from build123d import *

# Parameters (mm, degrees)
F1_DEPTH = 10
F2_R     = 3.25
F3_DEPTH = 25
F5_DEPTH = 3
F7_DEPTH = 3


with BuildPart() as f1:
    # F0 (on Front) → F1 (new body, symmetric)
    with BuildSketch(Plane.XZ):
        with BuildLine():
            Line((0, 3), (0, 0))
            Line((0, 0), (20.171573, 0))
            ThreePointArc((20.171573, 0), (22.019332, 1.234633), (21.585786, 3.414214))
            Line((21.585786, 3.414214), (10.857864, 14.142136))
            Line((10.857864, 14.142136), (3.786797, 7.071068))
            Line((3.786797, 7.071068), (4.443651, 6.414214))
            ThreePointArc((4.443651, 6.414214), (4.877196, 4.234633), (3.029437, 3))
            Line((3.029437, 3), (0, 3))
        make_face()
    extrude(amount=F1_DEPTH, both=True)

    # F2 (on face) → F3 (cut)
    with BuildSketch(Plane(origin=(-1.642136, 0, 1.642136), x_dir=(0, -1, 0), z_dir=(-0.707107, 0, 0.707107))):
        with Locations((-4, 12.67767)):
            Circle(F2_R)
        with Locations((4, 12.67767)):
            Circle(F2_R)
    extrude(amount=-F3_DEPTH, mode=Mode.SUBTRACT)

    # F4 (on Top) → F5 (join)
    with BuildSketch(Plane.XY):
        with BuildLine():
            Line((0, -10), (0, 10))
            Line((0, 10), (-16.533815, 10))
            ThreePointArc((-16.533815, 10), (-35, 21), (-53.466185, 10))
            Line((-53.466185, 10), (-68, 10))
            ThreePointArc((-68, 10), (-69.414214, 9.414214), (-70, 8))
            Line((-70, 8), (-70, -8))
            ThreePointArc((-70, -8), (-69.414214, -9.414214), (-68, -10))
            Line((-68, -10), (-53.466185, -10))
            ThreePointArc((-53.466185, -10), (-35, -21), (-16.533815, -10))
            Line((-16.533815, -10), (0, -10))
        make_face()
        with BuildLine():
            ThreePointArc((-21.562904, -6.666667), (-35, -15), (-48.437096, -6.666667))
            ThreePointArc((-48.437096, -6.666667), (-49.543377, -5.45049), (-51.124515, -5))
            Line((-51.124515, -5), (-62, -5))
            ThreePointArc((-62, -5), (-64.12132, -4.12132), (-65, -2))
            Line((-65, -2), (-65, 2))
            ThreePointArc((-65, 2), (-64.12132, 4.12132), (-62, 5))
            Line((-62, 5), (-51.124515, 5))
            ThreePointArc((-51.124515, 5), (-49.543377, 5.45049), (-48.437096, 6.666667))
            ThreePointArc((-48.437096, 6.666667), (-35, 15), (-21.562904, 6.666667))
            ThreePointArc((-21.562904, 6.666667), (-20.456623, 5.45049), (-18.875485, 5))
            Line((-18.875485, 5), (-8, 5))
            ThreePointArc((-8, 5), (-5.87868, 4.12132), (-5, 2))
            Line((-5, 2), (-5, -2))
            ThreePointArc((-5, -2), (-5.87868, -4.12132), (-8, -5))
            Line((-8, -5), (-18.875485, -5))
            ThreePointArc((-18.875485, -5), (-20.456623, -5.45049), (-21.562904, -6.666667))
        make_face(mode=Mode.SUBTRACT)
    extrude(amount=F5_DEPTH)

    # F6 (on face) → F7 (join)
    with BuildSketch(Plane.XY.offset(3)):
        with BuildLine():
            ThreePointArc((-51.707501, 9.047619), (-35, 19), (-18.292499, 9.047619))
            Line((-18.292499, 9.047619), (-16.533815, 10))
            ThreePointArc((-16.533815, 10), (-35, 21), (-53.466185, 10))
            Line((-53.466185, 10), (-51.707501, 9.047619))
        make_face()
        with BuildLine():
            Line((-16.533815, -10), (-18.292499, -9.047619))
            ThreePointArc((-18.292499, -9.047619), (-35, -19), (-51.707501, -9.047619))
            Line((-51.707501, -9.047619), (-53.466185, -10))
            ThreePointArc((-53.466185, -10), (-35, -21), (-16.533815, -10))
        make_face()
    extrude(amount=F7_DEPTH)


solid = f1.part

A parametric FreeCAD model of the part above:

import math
import FreeCAD as App
import Part
import Sketcher
Q = App.Units.Quantity

doc = App.newDocument("Part")
body = doc.addObject("PartDesign::Body", "Body")

# Sketch on XZ plane
sketch1 = doc.addObject("Sketcher::SketchObject", "Sketch")
body.addObject(sketch1)
sketch1.AttachmentSupport = (doc.XZ_Plane, [""])
sketch1.MapMode = "FlatFace"
sketch1.addGeometry([
    Part.LineSegment(App.Vector(0, 3, 0), App.Vector(0, 0, 0)),  # 0
    Part.LineSegment(App.Vector(0, 0, 0), App.Vector(20.171573, 0, 0)),  # 1
    Part.ArcOfCircle(Part.Circle(App.Vector(20.171573, 2, 0), App.Vector(0, 0, 1), 2), math.radians(-90.000001), math.radians(45.000022)),  # 2
    Part.LineSegment(App.Vector(21.585786, 3.414214, 0), App.Vector(10.857864, 14.142136, 0)),  # 3
    Part.LineSegment(App.Vector(10.857864, 14.142136, 0), App.Vector(3.786797, 7.071068, 0)),  # 4
    Part.LineSegment(App.Vector(3.786797, 7.071068, 0), App.Vector(4.443651, 6.414214, 0)),  # 5
    Part.ArcOfCircle(Part.Circle(App.Vector(3.029437, 5.000001, 0), App.Vector(0, 0, 1), 2.000001), math.radians(-89.99999), math.radians(44.999983)),  # 6
    Part.LineSegment(App.Vector(3.029437, 3, 0), App.Vector(0, 3, 0)),  # 7
], False)
sketch1.addConstraint([
    Sketcher.Constraint("Coincident", 0, 2, 1, 1),
    Sketcher.Constraint("Tangent", 1, 2, 2, 1),
    Sketcher.Constraint("Tangent", 2, 2, 3, 1),
    Sketcher.Constraint("Coincident", 3, 2, 4, 1),
    Sketcher.Constraint("Coincident", 4, 2, 5, 1),
    Sketcher.Constraint("Tangent", 5, 2, 6, 2),
    Sketcher.Constraint("Tangent", 6, 1, 7, 1),
    Sketcher.Constraint("Coincident", 7, 2, 0, 1),
    Sketcher.Constraint("Vertical", 0),
    Sketcher.Constraint("Horizontal", 1),
    Sketcher.Constraint("Horizontal", 7),
    Sketcher.Constraint("Coincident", 0, 2, -1, 1),
    Sketcher.Constraint("Equal", 2, 6),
    Sketcher.Constraint("Perpendicular", 3, 4),
    Sketcher.Constraint("Perpendicular", 4, 5),
    Sketcher.Constraint("Radius", 2, 2.0),
    Sketcher.Constraint("DistanceY", 0, 2, 0, 1, 3.0),
    Sketcher.Constraint("Angle", 3, Q("135 deg")),
    Sketcher.Constraint("Distance", 4, 10.0),
    Sketcher.Constraint("Distance", 5, 0.928932),
    Sketcher.Constraint("DistanceX", 1, 1, 1, 2, 20.171573),
])
pad1 = doc.addObject("PartDesign::Pad", "Pad")
body.addObject(pad1)
pad1.Profile = sketch1
pad1.Length = 20
pad1.Midplane = True

# Sketch on an angled plane
sketch2 = doc.addObject("Sketcher::SketchObject", "Sketch001")
body.addObject(sketch2)
sketch2.Placement = App.Placement(App.Vector(-1.642136, 0, 1.642136), App.Rotation(App.Vector(0, -1, 0), App.Vector(0.707106781, 0, 0.707106781), App.Vector(-0.707106781, 0, 0.707106781), "ZXY"))
sketch2.addGeometry([
    Part.Circle(App.Vector(-4, 12.67767, 0), App.Vector(0, 0, 1), 3.25),
    Part.Circle(App.Vector(4, 12.67767, 0), App.Vector(0, 0, 1), 3.25),
], False)
sketch2.addConstraint([
    Sketcher.Constraint("Equal", 0, 1),
    Sketcher.Constraint("Symmetric", 0, 3, 1, 3, -2),
    Sketcher.Constraint("Diameter", 0, 6.5),
    Sketcher.Constraint("DistanceX", 0, 3, -1, 1, 4.0),
    Sketcher.Constraint("DistanceY", -1, 1, 0, 3, 12.67767),
])
pocket1 = doc.addObject("PartDesign::Pocket", "Pocket")
body.addObject(pocket1)
pocket1.Profile = sketch2
pocket1.Length = 25

# Sketch on XY plane
sketch3 = doc.addObject("Sketcher::SketchObject", "Sketch002")
body.addObject(sketch3)
sketch3.AttachmentSupport = (doc.XY_Plane, [""])
sketch3.MapMode = "FlatFace"
sketch3.addGeometry([
    Part.LineSegment(App.Vector(0, -10, 0), App.Vector(0, 10, 0)),  # 0
    Part.LineSegment(App.Vector(0, 10, 0), App.Vector(-16.533815, 10, 0)),  # 1
    Part.ArcOfCircle(Part.Circle(App.Vector(-35, 0.000001, 0), App.Vector(0, 0, 1), 20.999999), math.radians(28.436889), math.radians(151.563111)),  # 2
    Part.LineSegment(App.Vector(-53.466185, 10, 0), App.Vector(-68, 10, 0)),  # 3
    Part.ArcOfCircle(Part.Circle(App.Vector(-68.000001, 8.000001, 0), App.Vector(0, 0, 1), 1.999999), math.radians(89.999957), math.radians(180.000043)),  # 4
    Part.LineSegment(App.Vector(-70, 8, 0), App.Vector(-70, -8, 0)),  # 5
    Part.ArcOfCircle(Part.Circle(App.Vector(-68.000001, -8.000001, 0), App.Vector(0, 0, 1), 1.999999), math.radians(179.999957), math.radians(270.000043)),  # 6
    Part.LineSegment(App.Vector(-68, -10, 0), App.Vector(-53.466185, -10, 0)),  # 7
    Part.ArcOfCircle(Part.Circle(App.Vector(-35, -0.000001, 0), App.Vector(0, 0, 1), 20.999999), math.radians(-151.563111), math.radians(-28.436889)),  # 8
    Part.LineSegment(App.Vector(-16.533815, -10, 0), App.Vector(0, -10, 0)),  # 9
    Part.ArcOfCircle(Part.Circle(App.Vector(-18.875485, -8, 0), App.Vector(0, 0, 1), 3), math.radians(90.000009), math.radians(153.612206)),  # 10
    Part.ArcOfCircle(Part.Circle(App.Vector(-35, 0, 0), App.Vector(0, 0, 1), 15), math.radians(-153.612199), math.radians(-26.387801)),  # 11
    Part.ArcOfCircle(Part.Circle(App.Vector(-51.124515, -8, 0), App.Vector(0, 0, 1), 3), math.radians(26.387794), math.radians(89.999991)),  # 12
    Part.LineSegment(App.Vector(-51.124515, -5, 0), App.Vector(-62, -5, 0)),  # 13
    Part.ArcOfCircle(Part.Circle(App.Vector(-61.999999, -1.999999, 0), App.Vector(0, 0, 1), 3.000001), math.radians(-179.999978), math.radians(-90.000022)),  # 14
    Part.LineSegment(App.Vector(-65, -2, 0), App.Vector(-65, 2, 0)),  # 15
    Part.ArcOfCircle(Part.Circle(App.Vector(-61.999999, 1.999999, 0), App.Vector(0, 0, 1), 3.000001), math.radians(90.000022), math.radians(179.999978)),  # 16
    Part.LineSegment(App.Vector(-62, 5, 0), App.Vector(-51.124515, 5, 0)),  # 17
    Part.ArcOfCircle(Part.Circle(App.Vector(-51.124515, 8, 0), App.Vector(0, 0, 1), 3), math.radians(-89.999991), math.radians(-26.387794)),  # 18
    Part.ArcOfCircle(Part.Circle(App.Vector(-35, 0, 0), App.Vector(0, 0, 1), 15), math.radians(26.387801), math.radians(153.612199)),  # 19
    Part.ArcOfCircle(Part.Circle(App.Vector(-18.875485, 8, 0), App.Vector(0, 0, 1), 3), math.radians(-153.612206), math.radians(-90.000009)),  # 20
    Part.LineSegment(App.Vector(-18.875485, 5, 0), App.Vector(-8, 5, 0)),  # 21
    Part.ArcOfCircle(Part.Circle(App.Vector(-8.000001, 1.999999, 0), App.Vector(0, 0, 1), 3.000001), math.radians(0.000022), math.radians(89.999978)),  # 22
    Part.LineSegment(App.Vector(-5, 2, 0), App.Vector(-5, -2, 0)),  # 23
    Part.ArcOfCircle(Part.Circle(App.Vector(-8.000001, -1.999999, 0), App.Vector(0, 0, 1), 3.000001), math.radians(-89.999978), math.radians(-0.000022)),  # 24
    Part.LineSegment(App.Vector(-8, -5, 0), App.Vector(-18.875485, -5, 0)),  # 25
], False)
sketch3.addConstraint([
    Sketcher.Constraint("Coincident", 0, 2, 1, 1),
    Sketcher.Constraint("Coincident", 1, 2, 2, 1),
    Sketcher.Constraint("Coincident", 2, 2, 3, 1),
    Sketcher.Constraint("Tangent", 3, 2, 4, 1),
    Sketcher.Constraint("Tangent", 4, 2, 5, 1),
    Sketcher.Constraint("Tangent", 5, 2, 6, 1),
    Sketcher.Constraint("Tangent", 6, 2, 7, 1),
    Sketcher.Constraint("Coincident", 7, 2, 8, 1),
    Sketcher.Constraint("Coincident", 8, 2, 9, 1),
    Sketcher.Constraint("Coincident", 9, 2, 0, 1),
    Sketcher.Constraint("Tangent", 10, 2, 11, 2),
    Sketcher.Constraint("Tangent", 11, 1, 12, 1),
    Sketcher.Constraint("Tangent", 12, 2, 13, 1),
    Sketcher.Constraint("Tangent", 13, 2, 14, 2),
    Sketcher.Constraint("Tangent", 14, 1, 15, 1),
    Sketcher.Constraint("Tangent", 15, 2, 16, 2),
    Sketcher.Constraint("Tangent", 16, 1, 17, 1),
    Sketcher.Constraint("Tangent", 17, 2, 18, 1),
    Sketcher.Constraint("Tangent", 18, 2, 19, 2),
    Sketcher.Constraint("Tangent", 19, 1, 20, 1),
    Sketcher.Constraint("Tangent", 20, 2, 21, 1),
    Sketcher.Constraint("Tangent", 21, 2, 22, 2),
    Sketcher.Constraint("Tangent", 22, 1, 23, 1),
    Sketcher.Constraint("Tangent", 23, 2, 24, 2),
    Sketcher.Constraint("Tangent", 24, 1, 25, 1),
    Sketcher.Constraint("Tangent", 25, 2, 10, 1),
    Sketcher.Constraint("Vertical", 0),
    Sketcher.Constraint("Horizontal", 1),
    Sketcher.Constraint("Horizontal", 3),
    Sketcher.Constraint("Vertical", 5),
    Sketcher.Constraint("Horizontal", 7),
    Sketcher.Constraint("Horizontal", 9),
    Sketcher.Constraint("Horizontal", 13),
    Sketcher.Constraint("Vertical", 15),
    Sketcher.Constraint("Horizontal", 17),
    Sketcher.Constraint("Horizontal", 21),
    Sketcher.Constraint("Vertical", 23),
    Sketcher.Constraint("Horizontal", 25),
    Sketcher.Constraint("Coincident", 8, 3, 2, 3),
    Sketcher.Constraint("Coincident", 11, 3, 2, 3),
    Sketcher.Constraint("Coincident", 19, 3, 2, 3),
    Sketcher.Constraint("Equal", 4, 6),
    Sketcher.Constraint("Equal", 2, 8),
    Sketcher.Constraint("Equal", 10, 12),
    Sketcher.Constraint("Equal", 12, 14),
    Sketcher.Constraint("Equal", 14, 16),
    Sketcher.Constraint("Equal", 16, 18),
    Sketcher.Constraint("Equal", 11, 19),
    Sketcher.Constraint("Equal", 18, 20),
    Sketcher.Constraint("Equal", 20, 22),
    Sketcher.Constraint("Equal", 22, 24),
    Sketcher.Constraint("Symmetric", 0, 2, 9, 2, -1, 1),
    Sketcher.Constraint("Symmetric", 12, 3, 18, 3, -1),
    Sketcher.Constraint("Horizontal", 6, 3, 10, 3),
    Sketcher.Constraint("Horizontal", 10, 3, 12, 3),
    Sketcher.Constraint("Horizontal", 4, 3, 18, 3),
    Sketcher.Constraint("Horizontal", 18, 3, 20, 3),
    Sketcher.Constraint("Horizontal", 1, 2, 2, 2),
    Sketcher.Constraint("Equal", 17, 21),
    Sketcher.Constraint("Radius", 2, 20.999999),
    Sketcher.Constraint("Radius", 4, 1.999999),
    Sketcher.Constraint("Radius", 10, 3.0),
    Sketcher.Constraint("Radius", 11, 15.0),
    Sketcher.Constraint("DistanceY", 0, 1, 0, 2, 20.0),
    Sketcher.Constraint("DistanceX", 2, 3, -1, 1, 35.0),
    Sketcher.Constraint("DistanceX", 4, 3, -1, 1, 68.000001),
    Sketcher.Constraint("DistanceX", 14, 3, -1, 1, 61.999999),
])
pad2 = doc.addObject("PartDesign::Pad", "Pad001")
body.addObject(pad2)
pad2.Profile = sketch3
pad2.Length = 3

# Sketch on XY plane
sketch4 = doc.addObject("Sketcher::SketchObject", "Sketch003")
body.addObject(sketch4)
sketch4.AttachmentSupport = (doc.XY_Plane, [""])
sketch4.MapMode = "FlatFace"
sketch4.AttachmentOffset = App.Placement(App.Vector(0, 0, 3), App.Rotation())
sketch4.addGeometry([
    Part.ArcOfCircle(Part.Circle(App.Vector(-35, 0, 0), App.Vector(0, 0, 1), 19), math.radians(28.43689), math.radians(151.56311)),  # 0
    Part.LineSegment(App.Vector(-18.292499, 9.047619, 0), App.Vector(-16.533815, 10, 0)),  # 1
    Part.ArcOfCircle(Part.Circle(App.Vector(-35, 0.000001, 0), App.Vector(0, 0, 1), 20.999999), math.radians(28.436889), math.radians(151.563111)),  # 2
    Part.LineSegment(App.Vector(-53.466185, 10, 0), App.Vector(-51.707501, 9.047619, 0)),  # 3
    Part.LineSegment(App.Vector(-16.533815, -10, 0), App.Vector(-18.292499, -9.047619, 0)),  # 4
    Part.ArcOfCircle(Part.Circle(App.Vector(-35, 0, 0), App.Vector(0, 0, 1), 19), math.radians(-151.56311), math.radians(-28.43689)),  # 5
    Part.LineSegment(App.Vector(-51.707501, -9.047619, 0), App.Vector(-53.466185, -10, 0)),  # 6
    Part.ArcOfCircle(Part.Circle(App.Vector(-35, -0.000001, 0), App.Vector(0, 0, 1), 20.999999), math.radians(-151.563111), math.radians(-28.436889)),  # 7
], False)
sketch4.addConstraint([
    Sketcher.Constraint("Coincident", 0, 1, 1, 1),
    Sketcher.Constraint("Coincident", 1, 2, 2, 1),
    Sketcher.Constraint("Coincident", 2, 2, 3, 1),
    Sketcher.Constraint("Coincident", 3, 2, 0, 2),
    Sketcher.Constraint("Coincident", 4, 2, 5, 2),
    Sketcher.Constraint("Coincident", 5, 1, 6, 1),
    Sketcher.Constraint("Coincident", 6, 2, 7, 1),
    Sketcher.Constraint("Coincident", 7, 2, 4, 1),
    Sketcher.Constraint("Coincident", 2, 3, 0, 3),
    Sketcher.Constraint("Coincident", 5, 3, 0, 3),
    Sketcher.Constraint("Coincident", 7, 3, 0, 3),
    Sketcher.Constraint("Equal", 0, 5),
    Sketcher.Constraint("Equal", 2, 7),
    Sketcher.Constraint("Symmetric", 0, 1, 4, 2, -1),
    Sketcher.Constraint("Parallel", 3, 4),
    Sketcher.Constraint("Parallel", 1, 6),
    Sketcher.Constraint("Horizontal", 1, 2, 2, 2),
    Sketcher.Constraint("Horizontal", 0, 1, 3, 2),
    Sketcher.Constraint("Horizontal", 4, 2, 5, 1),
    Sketcher.Constraint("Radius", 0, 19.0),
    Sketcher.Constraint("Radius", 2, 20.999999),
    Sketcher.Constraint("DistanceX", 0, 3, -1, 1, 35.0),
    Sketcher.Constraint("DistanceY", -1, 1, 1, 2, 10.0),
    Sketcher.Constraint("DistanceX", 0, 1, -1, 1, 18.292499),
])
pad3 = doc.addObject("PartDesign::Pad", "Pad002")
body.addObject(pad3)
pad3.Profile = sketch4
pad3.Length = 3

doc.recompute()
